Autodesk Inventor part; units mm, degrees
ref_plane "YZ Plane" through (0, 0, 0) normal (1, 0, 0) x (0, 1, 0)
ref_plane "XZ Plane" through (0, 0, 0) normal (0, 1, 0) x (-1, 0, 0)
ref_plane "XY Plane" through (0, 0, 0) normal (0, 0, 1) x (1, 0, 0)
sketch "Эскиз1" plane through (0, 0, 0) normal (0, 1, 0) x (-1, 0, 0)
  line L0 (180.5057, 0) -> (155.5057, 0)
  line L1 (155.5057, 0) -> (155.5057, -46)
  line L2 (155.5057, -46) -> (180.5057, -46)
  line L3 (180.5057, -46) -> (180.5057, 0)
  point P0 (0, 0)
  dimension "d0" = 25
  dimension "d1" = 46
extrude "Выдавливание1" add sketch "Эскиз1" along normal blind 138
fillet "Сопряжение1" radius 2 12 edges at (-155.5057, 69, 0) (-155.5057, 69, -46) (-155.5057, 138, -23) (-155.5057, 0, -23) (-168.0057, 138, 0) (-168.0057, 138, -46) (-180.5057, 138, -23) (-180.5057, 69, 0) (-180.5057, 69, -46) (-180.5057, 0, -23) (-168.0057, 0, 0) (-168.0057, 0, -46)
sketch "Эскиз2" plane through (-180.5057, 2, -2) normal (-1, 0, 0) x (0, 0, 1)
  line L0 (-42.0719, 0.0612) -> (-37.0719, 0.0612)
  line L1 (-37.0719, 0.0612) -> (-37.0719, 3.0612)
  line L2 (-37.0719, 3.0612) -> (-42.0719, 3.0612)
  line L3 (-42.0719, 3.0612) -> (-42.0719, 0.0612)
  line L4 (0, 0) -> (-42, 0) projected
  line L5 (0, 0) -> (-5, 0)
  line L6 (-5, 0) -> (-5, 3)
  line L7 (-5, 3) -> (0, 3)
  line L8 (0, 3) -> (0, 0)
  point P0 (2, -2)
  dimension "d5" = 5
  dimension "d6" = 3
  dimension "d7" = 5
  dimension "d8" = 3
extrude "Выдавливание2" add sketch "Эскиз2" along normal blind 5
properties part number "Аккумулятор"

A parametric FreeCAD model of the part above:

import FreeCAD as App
import Part
import Sketcher
from FreeCAD import Vector
Q = App.Units.Quantity

doc = App.newDocument("Part")
params = doc.addObject("Spreadsheet::Sheet", "Params")
for row, (alias, value) in enumerate([
    ("sketch1_width", "25 mm"),
    ("sketch1_height", "46 mm"),
    ("pad1_length", "138 mm"),
    ("fillet_radius", "2 mm"),
    ("sketch2_width", "3 mm"),
    ("sketch2_height", "5 mm"),
    ("pad2_length", "5 mm"),
], start=1):
    params.set(f"A{row}", alias)
    params.set(f"B{row}", "=" + value)
    params.setAlias(f"B{row}", alias)

body = doc.addObject("PartDesign::Body", "Body")

# Sketch on XZ plane
sketch1 = body.newObject("Sketcher::SketchObject", "Sketch")
sketch1.AttachmentSupport = (doc.getObject("XZ_Plane"), [""])
sketch1.MapMode = "FlatFace"
sketch1.addGeometry([
    Part.LineSegment(Vector(-180.5057, -46, 0), Vector(-180.5057, 0, 0)),
    Part.LineSegment(Vector(-180.5057, 0, 0), Vector(-155.5057, 0, 0)),
    Part.LineSegment(Vector(-155.5057, 0, 0), Vector(-155.5057, -46, 0)),
    Part.LineSegment(Vector(-155.5057, -46, 0), Vector(-180.5057, -46, 0)),
], False)
sketch1.addConstraint([
    Sketcher.Constraint("Coincident", 0, 2, 1, 1),
    Sketcher.Constraint("Coincident", 1, 2, 2, 1),
    Sketcher.Constraint("Coincident", 2, 2, 3, 1),
    Sketcher.Constraint("Coincident", 3, 2, 0, 1),
    Sketcher.Constraint("Vertical", 0),
    Sketcher.Constraint("Horizontal", 1),
    Sketcher.Constraint("Vertical", 2),
    Sketcher.Constraint("Horizontal", 3),
    Sketcher.Constraint("PointOnObject", 0, 2, -1),
    Sketcher.Constraint("DistanceX", 1, 1, 1, 2, Q("25 mm")),
    Sketcher.Constraint("DistanceY", 0, 1, 0, 2, Q("46 mm")),
    Sketcher.Constraint("DistanceX", 0, 2, -1, 1, Q("180.5057 mm")),
])
sketch1.setExpression("Constraints[9]", "Params.sketch1_width")
sketch1.setExpression("Constraints[10]", "Params.sketch1_height")
pad1 = body.newObject("PartDesign::Pad", "Pad")
pad1.Profile = sketch1
pad1.setExpression("Length", "Params.pad1_length")
pad1.Reversed = True
doc.recompute()

fillet = body.newObject("PartDesign::Fillet", "Fillet")
fillet.Base = (pad1, ["Edge1"])
fillet.UseAllEdges = True
fillet.setExpression("Radius", "Params.fillet_radius")

# Sketch on YZ plane
sketch2 = body.newObject("Sketcher::SketchObject", "Sketch001")
sketch2.AttachmentSupport = (doc.getObject("YZ_Plane"), [""])
sketch2.MapMode = "FlatFace"
sketch2.AttachmentOffset = App.Placement(Vector(0, 0, -180.5057), App.Rotation())
sketch2.addGeometry([
    Part.LineSegment(Vector(5.0612, -44.0719, 0), Vector(2.0612, -44.0719, 0)),  # 0
    Part.LineSegment(Vector(2.0612, -44.0719, 0), Vector(2.0612, -39.0719, 0)),  # 1
    Part.LineSegment(Vector(2.0612, -39.0719, 0), Vector(5.0612, -39.0719, 0)),  # 2
    Part.LineSegment(Vector(5.0612, -39.0719, 0), Vector(5.0612, -44.0719, 0)),  # 3
    Part.LineSegment(Vector(2, -7, 0), Vector(2, -2, 0)),  # 4
    Part.LineSegment(Vector(2, -2, 0), Vector(5, -2, 0)),  # 5
    Part.LineSegment(Vector(5, -2, 0), Vector(5, -7, 0)),  # 6
    Part.LineSegment(Vector(5, -7, 0), Vector(2, -7, 0)),  # 7
], False)
sketch2.addConstraint([
    Sketcher.Constraint("Coincident", 0, 2, 1, 1),
    Sketcher.Constraint("Coincident", 1, 2, 2, 1),
    Sketcher.Constraint("Coincident", 2, 2, 3, 1),
    Sketcher.Constraint("Coincident", 3, 2, 0, 1),
    Sketcher.Constraint("Coincident", 4, 2, 5, 1),
    Sketcher.Constraint("Coincident", 5, 2, 6, 1),
    Sketcher.Constraint("Coincident", 6, 2, 7, 1),
    Sketcher.Constraint("Coincident", 7, 2, 4, 1),
    Sketcher.Constraint("Horizontal", 0),
    Sketcher.Constraint("Vertical", 1),
    Sketcher.Constraint("Horizontal", 2),
    Sketcher.Constraint("Vertical", 3),
    Sketcher.Constraint("Vertical", 4),
    Sketcher.Constraint("Horizontal", 5),
    Sketcher.Constraint("Vertical", 6),
    Sketcher.Constraint("Horizontal", 7),
    Sketcher.Constraint("Equal", 2, 5),
    Sketcher.Constraint("Equal", 3, 4),
    Sketcher.Constraint("DistanceX", 0, 2, 0, 1, Q("3 mm")),
    Sketcher.Constraint("DistanceY", 1, 1, 1, 2, Q("5 mm")),
    Sketcher.Constraint("DistanceX", -1, 1, 5, 2, Q("5 mm")),
    Sketcher.Constraint("DistanceY", 4, 2, -1, 1, Q("2 mm")),
    Sketcher.Constraint("DistanceY", 0, 2, -1, 1, Q("44.072 mm")),
    Sketcher.Constraint("DistanceX", -1, 1, 0, 2, Q("2.0612 mm")),
])
sketch2.setExpression("Constraints[18]", "Params.sketch2_width")
sketch2.setExpression("Constraints[19]", "Params.sketch2_height")
pad2 = body.newObject("PartDesign::Pad", "Pad001")
pad2.Profile = sketch2
pad2.setExpression("Length", "Params.pad2_length")
pad2.Reversed = True

doc.recompute()
